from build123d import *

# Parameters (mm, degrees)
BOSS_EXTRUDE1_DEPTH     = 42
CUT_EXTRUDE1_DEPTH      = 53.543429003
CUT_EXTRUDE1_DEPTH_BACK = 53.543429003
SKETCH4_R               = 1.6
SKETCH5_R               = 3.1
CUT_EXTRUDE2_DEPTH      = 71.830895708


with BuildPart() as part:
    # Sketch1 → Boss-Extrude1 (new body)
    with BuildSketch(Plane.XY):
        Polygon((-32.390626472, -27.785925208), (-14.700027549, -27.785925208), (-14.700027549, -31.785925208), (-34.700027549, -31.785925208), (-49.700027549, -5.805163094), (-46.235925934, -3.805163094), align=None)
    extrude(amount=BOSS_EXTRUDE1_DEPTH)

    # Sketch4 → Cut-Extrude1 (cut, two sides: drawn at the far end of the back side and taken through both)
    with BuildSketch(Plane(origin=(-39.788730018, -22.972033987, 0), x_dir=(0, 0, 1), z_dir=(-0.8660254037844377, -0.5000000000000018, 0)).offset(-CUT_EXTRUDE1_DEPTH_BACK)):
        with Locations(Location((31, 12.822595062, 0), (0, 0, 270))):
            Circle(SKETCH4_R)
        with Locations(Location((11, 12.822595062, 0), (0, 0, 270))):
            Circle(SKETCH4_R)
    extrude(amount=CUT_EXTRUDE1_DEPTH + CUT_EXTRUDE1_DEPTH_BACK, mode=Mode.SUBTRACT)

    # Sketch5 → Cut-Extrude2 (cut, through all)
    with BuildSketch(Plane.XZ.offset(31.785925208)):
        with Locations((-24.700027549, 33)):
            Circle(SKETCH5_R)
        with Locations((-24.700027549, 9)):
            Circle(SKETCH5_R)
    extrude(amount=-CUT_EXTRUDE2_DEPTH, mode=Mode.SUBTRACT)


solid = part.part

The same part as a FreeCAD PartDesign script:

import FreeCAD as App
import Part
import Sketcher
from FreeCAD import Vector
Q = App.Units.Quantity

doc = App.newDocument("Part")
body = doc.addObject("PartDesign::Body", "Body")

# Sketch on XY plane
sketch1 = doc.addObject("Sketcher::SketchObject", "Sketch")
body.addObject(sketch1)
sketch1.AttachmentSupport = (doc.XY_Plane, [""])
sketch1.MapMode = "FlatFace"
sketch1.addGeometry([
    Part.LineSegment(Vector(-14.700028, -27.785925, 0), Vector(-32.390626, -27.785925, 0)),  # 0
    Part.LineSegment(Vector(-32.390626, -27.785925, 0), Vector(-46.235926, -3.805163, 0)),  # 1
    Part.LineSegment(Vector(-46.235926, -3.805163, 0), Vector(-49.700028, -5.805163, 0)),  # 2
    Part.LineSegment(Vector(-49.700028, -5.805163, 0), Vector(-34.700028, -31.785925, 0)),  # 3
    Part.LineSegment(Vector(-34.700028, -31.785925, 0), Vector(-14.700028, -31.785925, 0)),  # 4
    Part.LineSegment(Vector(-14.700028, -31.785925, 0), Vector(-14.700028, -27.785925, 0)),  # 5
], False)
sketch1.addConstraint([
    Sketcher.Constraint("Coincident", 0, 2, 1, 1),
    Sketcher.Constraint("Coincident", 1, 2, 2, 1),
    Sketcher.Constraint("Coincident", 2, 2, 3, 1),
    Sketcher.Constraint("Coincident", 3, 2, 4, 1),
    Sketcher.Constraint("Coincident", 4, 2, 5, 1),
    Sketcher.Constraint("Coincident", 5, 2, 0, 1),
    Sketcher.Constraint("Horizontal", 0),
    Sketcher.Constraint("Horizontal", 4),
    Sketcher.Constraint("Vertical", 5),
    Sketcher.Constraint("Perpendicular", 1, 2),
    Sketcher.Constraint("Perpendicular", 2, 3),
    Sketcher.Constraint("DistanceX", 4, 1, 4, 2, Q("20 mm")),
    Sketcher.Constraint("DistanceY", 5, 1, 5, 2, Q("4 mm")),
    Sketcher.Constraint("Angle", 1, Q("120 deg")),
    Sketcher.Constraint("Distance", 2, Q("4 mm")),
    Sketcher.Constraint("Distance", 3, Q("30 mm")),
    Sketcher.Constraint("DistanceX", 0, 2, -1, 1, Q("32.390626 mm")),
    Sketcher.Constraint("DistanceY", 0, 2, -1, 1, Q("27.785925 mm")),
])
pad1 = doc.addObject("PartDesign::Pad", "Pad")
body.addObject(pad1)
pad1.Profile = sketch1
pad1.Length = 42

# Sketch on an angled plane
sketch2 = doc.addObject("Sketcher::SketchObject", "Sketch001")
body.addObject(sketch2)
sketch2.Placement = App.Placement(Vector(-39.78873, -22.972034, 0), App.Rotation(Vector(0, 0, 1), Vector(-0.5, 0.866025404, 0), Vector(-0.866025404, -0.5, 0), "ZXY"))
sketch2.addGeometry([
    Part.Circle(Vector(31, 12.822595, 0), Vector(0, 0, 1), 1.6),
    Part.Circle(Vector(11, 12.822595, 0), Vector(0, 0, 1), 1.6),
], False)
sketch2.addConstraint([
    Sketcher.Constraint("Equal", 0, 1),
    Sketcher.Constraint("Horizontal", 0, 3, 1, 3),
    Sketcher.Constraint("Diameter", 0, Q("3.2 mm")),
    Sketcher.Constraint("DistanceX", -1, 1, 0, 3, Q("31 mm")),
    Sketcher.Constraint("DistanceX", -1, 1, 1, 3, Q("11 mm")),
    Sketcher.Constraint("DistanceY", -1, 1, 0, 3, Q("12.822595 mm")),
])
pocket1 = doc.addObject("PartDesign::Pocket", "Pocket")
body.addObject(pocket1)
pocket1.Profile = sketch2
pocket1.Type = "ThroughAll"
pocket1.Midplane = True

# Sketch on XZ plane
sketch3 = doc.addObject("Sketcher::SketchObject", "Sketch002")
body.addObject(sketch3)
sketch3.AttachmentSupport = (doc.XZ_Plane, [""])
sketch3.MapMode = "FlatFace"
sketch3.AttachmentOffset = App.Placement(Vector(0, 0, 31.785925), App.Rotation())
sketch3.addGeometry([
    Part.Circle(Vector(-24.700028, 33, 0), Vector(0, 0, 1), 3.1),
    Part.Circle(Vector(-24.700028, 9, 0), Vector(0, 0, 1), 3.1),
], False)
sketch3.addConstraint([
    Sketcher.Constraint("Equal", 0, 1),
    Sketcher.Constraint("Vertical", 0, 3, 1, 3),
    Sketcher.Constraint("Diameter", 0, Q("6.2 mm")),
    Sketcher.Constraint("DistanceY", -1, 1, 0, 3, Q("33 mm")),
    Sketcher.Constraint("DistanceY", -1, 1, 1, 3, Q("9 mm")),
    Sketcher.Constraint("DistanceX", 0, 3, -1, 1, Q("24.700028 mm")),
])
pocket2 = doc.addObject("PartDesign::Pocket", "Pocket001")
body.addObject(pocket2)
pocket2.Profile = sketch3
pocket2.Type = "ThroughAll"

doc.recompute()
